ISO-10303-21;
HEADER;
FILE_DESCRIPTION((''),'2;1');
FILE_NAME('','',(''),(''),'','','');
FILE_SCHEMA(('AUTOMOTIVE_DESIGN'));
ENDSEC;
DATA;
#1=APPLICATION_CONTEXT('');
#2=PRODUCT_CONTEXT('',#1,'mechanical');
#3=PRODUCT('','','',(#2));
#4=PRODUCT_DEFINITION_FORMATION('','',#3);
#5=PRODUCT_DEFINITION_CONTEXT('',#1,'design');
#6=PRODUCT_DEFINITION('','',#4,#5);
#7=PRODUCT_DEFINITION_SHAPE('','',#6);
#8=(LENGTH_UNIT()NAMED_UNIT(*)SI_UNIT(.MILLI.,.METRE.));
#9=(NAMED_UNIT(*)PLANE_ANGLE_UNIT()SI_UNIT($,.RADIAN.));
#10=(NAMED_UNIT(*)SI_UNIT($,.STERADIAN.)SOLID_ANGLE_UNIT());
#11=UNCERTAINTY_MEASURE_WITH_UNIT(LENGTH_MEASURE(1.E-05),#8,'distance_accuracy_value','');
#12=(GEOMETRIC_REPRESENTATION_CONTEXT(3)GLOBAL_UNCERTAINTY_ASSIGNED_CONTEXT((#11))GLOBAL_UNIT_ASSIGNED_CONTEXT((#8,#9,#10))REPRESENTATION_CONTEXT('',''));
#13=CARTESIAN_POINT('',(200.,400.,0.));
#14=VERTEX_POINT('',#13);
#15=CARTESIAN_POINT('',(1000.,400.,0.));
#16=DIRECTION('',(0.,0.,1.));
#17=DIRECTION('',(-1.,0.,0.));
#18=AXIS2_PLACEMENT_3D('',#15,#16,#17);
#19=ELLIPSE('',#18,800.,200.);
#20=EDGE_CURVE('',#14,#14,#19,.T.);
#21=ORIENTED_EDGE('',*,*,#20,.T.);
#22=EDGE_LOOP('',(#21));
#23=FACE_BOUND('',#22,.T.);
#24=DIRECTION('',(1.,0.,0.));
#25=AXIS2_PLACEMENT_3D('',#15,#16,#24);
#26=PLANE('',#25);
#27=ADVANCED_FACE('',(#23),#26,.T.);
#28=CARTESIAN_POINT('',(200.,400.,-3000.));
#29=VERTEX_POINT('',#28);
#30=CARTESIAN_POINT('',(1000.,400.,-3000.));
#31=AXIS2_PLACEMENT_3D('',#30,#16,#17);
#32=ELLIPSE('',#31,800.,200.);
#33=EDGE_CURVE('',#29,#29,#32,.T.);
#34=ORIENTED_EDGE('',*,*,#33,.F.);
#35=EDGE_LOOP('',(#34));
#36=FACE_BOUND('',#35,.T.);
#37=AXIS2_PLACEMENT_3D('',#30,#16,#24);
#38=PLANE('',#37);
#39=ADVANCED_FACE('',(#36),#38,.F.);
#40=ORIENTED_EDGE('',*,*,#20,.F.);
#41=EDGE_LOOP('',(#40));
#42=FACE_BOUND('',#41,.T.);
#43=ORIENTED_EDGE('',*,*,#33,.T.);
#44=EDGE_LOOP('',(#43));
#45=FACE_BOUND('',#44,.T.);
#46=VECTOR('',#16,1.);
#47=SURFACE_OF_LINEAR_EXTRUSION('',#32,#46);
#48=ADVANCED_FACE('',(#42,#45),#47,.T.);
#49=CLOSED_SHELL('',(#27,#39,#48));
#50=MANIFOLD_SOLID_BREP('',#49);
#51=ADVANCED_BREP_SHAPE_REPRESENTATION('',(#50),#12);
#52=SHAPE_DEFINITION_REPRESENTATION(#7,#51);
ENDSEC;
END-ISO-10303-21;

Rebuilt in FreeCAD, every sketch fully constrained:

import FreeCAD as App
import Part
import Sketcher
from FreeCAD import Vector

doc = App.newDocument("Part")
body = doc.addObject("PartDesign::Body", "Body")

# Sketch on XY plane
sketch1 = body.newObject("Sketcher::SketchObject", "Sketch")
sketch1.AttachmentSupport = (doc.getObject("XY_Plane"), [""])
sketch1.MapMode = "FlatFace"
sketch1.addGeometry(Part.Ellipse(Vector(200, 400, 0), Vector(1000, 200, 0), Vector(1000, 400, 0)), False)
sketch1.addConstraint(Sketcher.Constraint("Block", 0))
pad1 = body.newObject("PartDesign::Pad", "Pad")
pad1.Profile = sketch1
pad1.Length = 3000
pad1.Reversed = True

doc.recompute()
